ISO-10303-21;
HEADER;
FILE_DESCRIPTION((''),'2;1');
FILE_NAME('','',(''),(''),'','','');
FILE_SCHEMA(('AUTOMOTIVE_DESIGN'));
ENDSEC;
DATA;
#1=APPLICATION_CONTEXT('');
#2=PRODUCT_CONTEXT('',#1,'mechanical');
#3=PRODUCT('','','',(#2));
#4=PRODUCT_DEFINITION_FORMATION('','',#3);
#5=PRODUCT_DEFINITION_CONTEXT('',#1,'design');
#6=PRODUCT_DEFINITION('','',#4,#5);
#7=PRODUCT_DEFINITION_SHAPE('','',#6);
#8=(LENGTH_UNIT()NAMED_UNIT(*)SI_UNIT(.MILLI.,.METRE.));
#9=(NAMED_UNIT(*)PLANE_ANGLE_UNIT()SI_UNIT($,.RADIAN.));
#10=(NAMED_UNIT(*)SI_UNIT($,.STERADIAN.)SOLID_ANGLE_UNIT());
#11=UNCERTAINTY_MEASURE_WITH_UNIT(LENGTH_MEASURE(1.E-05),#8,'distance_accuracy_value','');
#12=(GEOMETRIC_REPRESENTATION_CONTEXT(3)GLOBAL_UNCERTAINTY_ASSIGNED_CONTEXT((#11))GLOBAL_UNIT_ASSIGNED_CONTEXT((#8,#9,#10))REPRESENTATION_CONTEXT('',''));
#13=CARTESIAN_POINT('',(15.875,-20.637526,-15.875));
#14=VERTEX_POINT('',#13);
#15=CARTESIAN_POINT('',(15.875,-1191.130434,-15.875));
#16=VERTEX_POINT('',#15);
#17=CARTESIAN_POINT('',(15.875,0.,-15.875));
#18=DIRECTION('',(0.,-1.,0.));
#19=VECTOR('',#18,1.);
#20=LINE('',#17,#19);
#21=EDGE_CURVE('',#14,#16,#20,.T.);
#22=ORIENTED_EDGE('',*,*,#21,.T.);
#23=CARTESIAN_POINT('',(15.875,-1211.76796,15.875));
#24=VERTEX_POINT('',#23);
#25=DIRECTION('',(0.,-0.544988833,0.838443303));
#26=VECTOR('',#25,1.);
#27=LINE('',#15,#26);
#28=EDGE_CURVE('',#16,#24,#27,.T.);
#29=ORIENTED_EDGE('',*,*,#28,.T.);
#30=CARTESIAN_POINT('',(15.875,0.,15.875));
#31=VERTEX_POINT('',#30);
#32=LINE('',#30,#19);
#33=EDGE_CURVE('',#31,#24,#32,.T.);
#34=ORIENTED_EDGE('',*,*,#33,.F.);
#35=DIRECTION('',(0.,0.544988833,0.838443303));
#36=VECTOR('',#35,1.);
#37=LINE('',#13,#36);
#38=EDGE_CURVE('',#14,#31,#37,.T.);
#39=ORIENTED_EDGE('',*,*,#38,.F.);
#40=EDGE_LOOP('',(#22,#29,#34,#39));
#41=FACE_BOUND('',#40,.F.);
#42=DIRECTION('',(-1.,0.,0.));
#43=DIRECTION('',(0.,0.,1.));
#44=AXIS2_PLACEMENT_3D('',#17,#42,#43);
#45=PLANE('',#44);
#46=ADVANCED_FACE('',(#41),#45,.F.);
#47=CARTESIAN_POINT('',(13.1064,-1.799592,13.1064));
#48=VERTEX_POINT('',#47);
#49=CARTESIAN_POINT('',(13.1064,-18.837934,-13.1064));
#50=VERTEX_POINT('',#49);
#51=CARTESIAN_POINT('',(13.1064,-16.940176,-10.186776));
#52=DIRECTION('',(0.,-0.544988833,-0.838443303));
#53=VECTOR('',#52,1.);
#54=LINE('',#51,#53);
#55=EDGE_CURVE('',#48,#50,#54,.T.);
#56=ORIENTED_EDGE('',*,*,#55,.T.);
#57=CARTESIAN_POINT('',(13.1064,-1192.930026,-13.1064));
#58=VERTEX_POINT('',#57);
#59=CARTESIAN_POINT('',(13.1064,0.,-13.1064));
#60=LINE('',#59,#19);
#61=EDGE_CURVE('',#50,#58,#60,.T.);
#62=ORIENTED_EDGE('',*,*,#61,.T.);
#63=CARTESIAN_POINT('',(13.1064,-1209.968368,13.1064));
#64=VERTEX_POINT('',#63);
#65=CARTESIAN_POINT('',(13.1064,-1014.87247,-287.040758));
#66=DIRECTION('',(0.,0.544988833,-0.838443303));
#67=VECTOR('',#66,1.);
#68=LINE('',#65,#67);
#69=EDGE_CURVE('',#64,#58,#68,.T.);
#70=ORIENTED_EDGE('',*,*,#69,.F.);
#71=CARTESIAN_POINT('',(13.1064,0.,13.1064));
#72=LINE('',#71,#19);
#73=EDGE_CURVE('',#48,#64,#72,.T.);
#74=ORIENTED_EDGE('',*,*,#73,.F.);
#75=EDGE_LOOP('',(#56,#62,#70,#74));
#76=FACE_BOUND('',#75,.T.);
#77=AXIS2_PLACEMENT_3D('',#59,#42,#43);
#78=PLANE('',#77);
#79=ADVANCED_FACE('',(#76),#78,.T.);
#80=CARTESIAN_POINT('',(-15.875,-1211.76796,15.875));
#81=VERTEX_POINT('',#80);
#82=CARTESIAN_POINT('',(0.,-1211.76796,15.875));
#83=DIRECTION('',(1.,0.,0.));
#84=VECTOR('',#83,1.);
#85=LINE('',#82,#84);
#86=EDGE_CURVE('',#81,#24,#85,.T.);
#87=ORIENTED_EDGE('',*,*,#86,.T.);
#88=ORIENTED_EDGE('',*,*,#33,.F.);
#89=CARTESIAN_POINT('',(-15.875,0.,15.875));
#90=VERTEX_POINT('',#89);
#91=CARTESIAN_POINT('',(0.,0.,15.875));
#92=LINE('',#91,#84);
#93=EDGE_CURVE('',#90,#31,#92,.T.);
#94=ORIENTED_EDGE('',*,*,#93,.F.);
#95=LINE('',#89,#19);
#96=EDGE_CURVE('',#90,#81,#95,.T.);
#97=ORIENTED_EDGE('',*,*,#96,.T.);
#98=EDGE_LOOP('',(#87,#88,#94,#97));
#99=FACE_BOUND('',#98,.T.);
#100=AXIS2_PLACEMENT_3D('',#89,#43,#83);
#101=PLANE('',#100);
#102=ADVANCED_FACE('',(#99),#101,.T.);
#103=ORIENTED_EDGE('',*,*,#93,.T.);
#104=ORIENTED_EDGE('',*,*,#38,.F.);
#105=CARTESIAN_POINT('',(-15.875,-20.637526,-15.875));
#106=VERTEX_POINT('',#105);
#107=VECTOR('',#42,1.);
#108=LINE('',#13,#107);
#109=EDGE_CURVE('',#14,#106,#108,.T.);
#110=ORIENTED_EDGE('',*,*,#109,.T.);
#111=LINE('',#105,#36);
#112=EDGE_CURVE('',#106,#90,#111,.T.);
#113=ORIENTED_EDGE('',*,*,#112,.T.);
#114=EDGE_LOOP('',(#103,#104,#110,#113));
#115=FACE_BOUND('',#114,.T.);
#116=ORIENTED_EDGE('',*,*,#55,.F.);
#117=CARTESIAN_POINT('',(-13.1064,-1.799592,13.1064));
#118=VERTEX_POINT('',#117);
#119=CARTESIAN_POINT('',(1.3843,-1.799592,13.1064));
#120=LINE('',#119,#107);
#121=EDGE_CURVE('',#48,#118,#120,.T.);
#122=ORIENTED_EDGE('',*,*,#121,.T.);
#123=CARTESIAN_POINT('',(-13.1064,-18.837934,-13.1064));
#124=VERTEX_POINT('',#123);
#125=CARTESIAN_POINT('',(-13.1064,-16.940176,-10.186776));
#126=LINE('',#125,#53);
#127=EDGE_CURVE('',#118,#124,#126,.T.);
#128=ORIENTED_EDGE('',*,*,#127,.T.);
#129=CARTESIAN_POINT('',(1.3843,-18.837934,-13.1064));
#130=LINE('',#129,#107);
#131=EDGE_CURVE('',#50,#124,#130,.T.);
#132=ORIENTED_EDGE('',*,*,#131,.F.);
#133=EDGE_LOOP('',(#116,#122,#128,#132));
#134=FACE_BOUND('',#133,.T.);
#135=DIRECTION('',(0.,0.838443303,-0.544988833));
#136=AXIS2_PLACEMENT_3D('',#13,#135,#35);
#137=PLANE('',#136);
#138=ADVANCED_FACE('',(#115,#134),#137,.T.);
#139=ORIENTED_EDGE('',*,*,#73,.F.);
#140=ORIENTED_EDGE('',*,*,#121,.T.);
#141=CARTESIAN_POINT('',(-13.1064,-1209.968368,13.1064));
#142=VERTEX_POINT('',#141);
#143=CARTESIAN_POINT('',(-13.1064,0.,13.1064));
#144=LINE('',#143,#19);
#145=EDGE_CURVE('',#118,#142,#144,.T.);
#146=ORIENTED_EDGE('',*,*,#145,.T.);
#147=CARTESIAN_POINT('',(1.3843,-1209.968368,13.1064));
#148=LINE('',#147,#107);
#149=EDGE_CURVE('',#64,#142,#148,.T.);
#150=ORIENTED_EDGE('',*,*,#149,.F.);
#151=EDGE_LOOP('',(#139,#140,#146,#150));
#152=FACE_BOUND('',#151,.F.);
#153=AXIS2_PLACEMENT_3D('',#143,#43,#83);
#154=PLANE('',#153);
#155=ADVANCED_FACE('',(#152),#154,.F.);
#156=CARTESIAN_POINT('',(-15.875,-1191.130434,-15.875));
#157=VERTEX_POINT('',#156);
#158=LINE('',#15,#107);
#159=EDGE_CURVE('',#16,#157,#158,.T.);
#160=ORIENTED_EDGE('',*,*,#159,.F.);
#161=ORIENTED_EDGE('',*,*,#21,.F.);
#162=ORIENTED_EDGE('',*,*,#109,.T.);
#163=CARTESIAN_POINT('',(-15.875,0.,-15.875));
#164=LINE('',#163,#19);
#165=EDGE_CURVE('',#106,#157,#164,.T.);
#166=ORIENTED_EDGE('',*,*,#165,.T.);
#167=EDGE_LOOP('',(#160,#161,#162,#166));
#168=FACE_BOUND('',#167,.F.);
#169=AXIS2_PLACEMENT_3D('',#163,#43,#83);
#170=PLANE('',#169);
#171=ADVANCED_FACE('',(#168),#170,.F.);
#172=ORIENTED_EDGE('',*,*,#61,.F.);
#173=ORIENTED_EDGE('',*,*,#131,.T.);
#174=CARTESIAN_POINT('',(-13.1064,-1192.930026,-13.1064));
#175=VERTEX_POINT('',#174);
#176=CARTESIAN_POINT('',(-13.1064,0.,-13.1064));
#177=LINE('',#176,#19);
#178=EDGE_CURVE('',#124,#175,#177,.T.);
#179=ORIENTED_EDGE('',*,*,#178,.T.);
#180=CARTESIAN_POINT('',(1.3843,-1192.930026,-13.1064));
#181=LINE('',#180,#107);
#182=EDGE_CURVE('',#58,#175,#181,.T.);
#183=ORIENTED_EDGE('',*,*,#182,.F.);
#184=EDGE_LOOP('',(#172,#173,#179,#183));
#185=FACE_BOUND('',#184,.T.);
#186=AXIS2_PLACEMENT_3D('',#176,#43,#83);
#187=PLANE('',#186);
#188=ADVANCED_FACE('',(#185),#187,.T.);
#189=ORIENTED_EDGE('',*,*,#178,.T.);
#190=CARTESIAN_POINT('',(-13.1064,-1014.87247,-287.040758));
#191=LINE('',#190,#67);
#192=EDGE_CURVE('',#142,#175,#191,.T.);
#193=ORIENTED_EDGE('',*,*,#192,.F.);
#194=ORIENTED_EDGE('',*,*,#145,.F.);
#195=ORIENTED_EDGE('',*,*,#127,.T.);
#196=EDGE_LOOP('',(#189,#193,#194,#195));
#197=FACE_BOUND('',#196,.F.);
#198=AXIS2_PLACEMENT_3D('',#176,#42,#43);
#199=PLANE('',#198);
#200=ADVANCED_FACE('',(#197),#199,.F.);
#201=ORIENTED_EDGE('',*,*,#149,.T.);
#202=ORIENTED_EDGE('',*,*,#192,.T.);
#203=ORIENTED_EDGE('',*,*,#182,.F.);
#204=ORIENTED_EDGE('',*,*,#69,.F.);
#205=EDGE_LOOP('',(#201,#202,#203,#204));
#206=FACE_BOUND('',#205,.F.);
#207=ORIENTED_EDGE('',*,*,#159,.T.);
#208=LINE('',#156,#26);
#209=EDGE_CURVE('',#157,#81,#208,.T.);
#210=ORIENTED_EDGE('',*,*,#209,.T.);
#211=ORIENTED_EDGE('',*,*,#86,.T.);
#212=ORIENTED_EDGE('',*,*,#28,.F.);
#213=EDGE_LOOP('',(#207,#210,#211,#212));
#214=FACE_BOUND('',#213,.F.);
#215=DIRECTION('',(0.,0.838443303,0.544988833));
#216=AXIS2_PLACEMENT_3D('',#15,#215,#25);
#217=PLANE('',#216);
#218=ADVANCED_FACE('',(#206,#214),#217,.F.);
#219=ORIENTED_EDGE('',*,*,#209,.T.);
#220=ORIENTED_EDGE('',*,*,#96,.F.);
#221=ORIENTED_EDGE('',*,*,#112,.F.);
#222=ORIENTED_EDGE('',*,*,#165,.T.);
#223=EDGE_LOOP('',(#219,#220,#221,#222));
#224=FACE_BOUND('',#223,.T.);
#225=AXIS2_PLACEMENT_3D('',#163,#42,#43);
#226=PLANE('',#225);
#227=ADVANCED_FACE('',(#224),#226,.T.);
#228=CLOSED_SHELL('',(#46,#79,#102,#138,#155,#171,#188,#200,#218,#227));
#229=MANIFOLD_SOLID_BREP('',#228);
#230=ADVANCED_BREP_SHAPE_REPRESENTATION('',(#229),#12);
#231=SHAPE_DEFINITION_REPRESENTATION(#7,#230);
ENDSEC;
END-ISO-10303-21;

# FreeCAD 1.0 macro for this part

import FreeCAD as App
import Part
import Sketcher

V = App.Vector
Q = App.Units.Quantity


def add_polygon(sketch, points):
    """Adds a closed chain of lines whose ends are joined by coincident constraints."""
    first, n = sketch.GeometryCount, len(points)
    for a, b in zip(points, points[1:] + points[:1]):
        sketch.addGeometry(Part.LineSegment(App.Vector(*a, 0), App.Vector(*b, 0)), False)
    for i in range(n):
        sketch.addConstraint(Sketcher.Constraint("Coincident", first + i, 2, first + (i + 1) % n, 1))

doc = App.newDocument("Part")
body = doc.addObject("PartDesign::Body", "Body")

# Sketch on XZ plane
sketch1 = body.newObject("Sketcher::SketchObject", "Sketch")
sketch1.AttachmentSupport = (doc.getObject("XZ_Plane"), [""])
sketch1.MapMode = "FlatFace"
add_polygon(sketch1, [(-16, 16), (-16, -16), (16, -16), (16, 16)])  # lines 0-3
add_polygon(sketch1, [(13, -13), (-13, -13), (-13, 13), (13, 13)])  # lines 4-7
sketch1.addConstraint([
    Sketcher.Constraint("Vertical", 0),
    Sketcher.Constraint("Horizontal", 1),
    Sketcher.Constraint("Vertical", 2),
    Sketcher.Constraint("Horizontal", 3),
    Sketcher.Constraint("Horizontal", 4),
    Sketcher.Constraint("Vertical", 5),
    Sketcher.Constraint("Horizontal", 6),
    Sketcher.Constraint("Vertical", 7),
    Sketcher.Constraint("Symmetric", 0, 2, 2, 2, -1, 1),
    Sketcher.Constraint("Symmetric", 4, 2, 6, 2, -1, 1),
    Sketcher.Constraint("Equal", 3, 0),
    Sketcher.Constraint("Equal", 6, 5),
    Sketcher.Constraint("DistanceX", 1, 1, 1, 2, Q("1.25 in")),
    Sketcher.Constraint("DistanceX", 4, 2, 4, 1, Q("1.032 in")),
])
pad1 = body.newObject("PartDesign::Pad", "Pad")
pad1.Profile = sketch1
pad1.Length = Q("47.7074 in")

# Sketch on YZ plane
sketch2 = body.newObject("Sketcher::SketchObject", "Sketch001")
sketch2.AttachmentSupport = (doc.getObject("YZ_Plane"), [""])
sketch2.MapMode = "FlatFace"
sketch2.AttachmentOffset = App.Placement(V(0, 0, 0.625 * 25.4), App.Rotation())
add_polygon(sketch2, [(0, -16), (0, 16), (-21, -16)])  # lines 0-2
sketch2.addConstraint([
    Sketcher.Constraint("Vertical", 0),
    Sketcher.Constraint("Horizontal", 2),
    Sketcher.Constraint("Symmetric", 0, 2, 2, 2, -1, 1),
    Sketcher.Constraint("DistanceY", 0, 1, 0, 2, Q("1.25 in")),
    Sketcher.Constraint("DistanceX", 2, 1, 2, 2, 20.637526),
])
pocket1 = body.newObject("PartDesign::Pocket", "Pocket")
pocket1.Profile = sketch2
pocket1.Length = Q("1.25 in")

# Sketch on YZ plane
sketch3 = body.newObject("Sketcher::SketchObject", "Sketch002")
sketch3.AttachmentSupport = (doc.getObject("YZ_Plane"), [""])
sketch3.MapMode = "FlatFace"
sketch3.AttachmentOffset = App.Placement(V(0, 0, 0.625 * 25.4), App.Rotation())
add_polygon(sketch3, [(-1212, 16), (-1212, -16), (-1191, -16)])  # lines 0-2
sketch3.addConstraint([
    Sketcher.Constraint("Vertical", 0),
    Sketcher.Constraint("Horizontal", 1),
    Sketcher.Constraint("DistanceY", 0, 2, 0, 1, Q("1.25 in")),
    Sketcher.Constraint("DistanceY", 0, 2, -1, 1, Q("0.625 in")),
    Sketcher.Constraint("DistanceX", 0, 2, -1, 1, Q("47.7074 in")),
    Sketcher.Constraint("DistanceX", 1, 1, 1, 2, 20.637526),
])
pocket2 = body.newObject("PartDesign::Pocket", "Pocket001")
pocket2.Profile = sketch3
pocket2.Length = Q("1.25 in")

doc.recompute()
